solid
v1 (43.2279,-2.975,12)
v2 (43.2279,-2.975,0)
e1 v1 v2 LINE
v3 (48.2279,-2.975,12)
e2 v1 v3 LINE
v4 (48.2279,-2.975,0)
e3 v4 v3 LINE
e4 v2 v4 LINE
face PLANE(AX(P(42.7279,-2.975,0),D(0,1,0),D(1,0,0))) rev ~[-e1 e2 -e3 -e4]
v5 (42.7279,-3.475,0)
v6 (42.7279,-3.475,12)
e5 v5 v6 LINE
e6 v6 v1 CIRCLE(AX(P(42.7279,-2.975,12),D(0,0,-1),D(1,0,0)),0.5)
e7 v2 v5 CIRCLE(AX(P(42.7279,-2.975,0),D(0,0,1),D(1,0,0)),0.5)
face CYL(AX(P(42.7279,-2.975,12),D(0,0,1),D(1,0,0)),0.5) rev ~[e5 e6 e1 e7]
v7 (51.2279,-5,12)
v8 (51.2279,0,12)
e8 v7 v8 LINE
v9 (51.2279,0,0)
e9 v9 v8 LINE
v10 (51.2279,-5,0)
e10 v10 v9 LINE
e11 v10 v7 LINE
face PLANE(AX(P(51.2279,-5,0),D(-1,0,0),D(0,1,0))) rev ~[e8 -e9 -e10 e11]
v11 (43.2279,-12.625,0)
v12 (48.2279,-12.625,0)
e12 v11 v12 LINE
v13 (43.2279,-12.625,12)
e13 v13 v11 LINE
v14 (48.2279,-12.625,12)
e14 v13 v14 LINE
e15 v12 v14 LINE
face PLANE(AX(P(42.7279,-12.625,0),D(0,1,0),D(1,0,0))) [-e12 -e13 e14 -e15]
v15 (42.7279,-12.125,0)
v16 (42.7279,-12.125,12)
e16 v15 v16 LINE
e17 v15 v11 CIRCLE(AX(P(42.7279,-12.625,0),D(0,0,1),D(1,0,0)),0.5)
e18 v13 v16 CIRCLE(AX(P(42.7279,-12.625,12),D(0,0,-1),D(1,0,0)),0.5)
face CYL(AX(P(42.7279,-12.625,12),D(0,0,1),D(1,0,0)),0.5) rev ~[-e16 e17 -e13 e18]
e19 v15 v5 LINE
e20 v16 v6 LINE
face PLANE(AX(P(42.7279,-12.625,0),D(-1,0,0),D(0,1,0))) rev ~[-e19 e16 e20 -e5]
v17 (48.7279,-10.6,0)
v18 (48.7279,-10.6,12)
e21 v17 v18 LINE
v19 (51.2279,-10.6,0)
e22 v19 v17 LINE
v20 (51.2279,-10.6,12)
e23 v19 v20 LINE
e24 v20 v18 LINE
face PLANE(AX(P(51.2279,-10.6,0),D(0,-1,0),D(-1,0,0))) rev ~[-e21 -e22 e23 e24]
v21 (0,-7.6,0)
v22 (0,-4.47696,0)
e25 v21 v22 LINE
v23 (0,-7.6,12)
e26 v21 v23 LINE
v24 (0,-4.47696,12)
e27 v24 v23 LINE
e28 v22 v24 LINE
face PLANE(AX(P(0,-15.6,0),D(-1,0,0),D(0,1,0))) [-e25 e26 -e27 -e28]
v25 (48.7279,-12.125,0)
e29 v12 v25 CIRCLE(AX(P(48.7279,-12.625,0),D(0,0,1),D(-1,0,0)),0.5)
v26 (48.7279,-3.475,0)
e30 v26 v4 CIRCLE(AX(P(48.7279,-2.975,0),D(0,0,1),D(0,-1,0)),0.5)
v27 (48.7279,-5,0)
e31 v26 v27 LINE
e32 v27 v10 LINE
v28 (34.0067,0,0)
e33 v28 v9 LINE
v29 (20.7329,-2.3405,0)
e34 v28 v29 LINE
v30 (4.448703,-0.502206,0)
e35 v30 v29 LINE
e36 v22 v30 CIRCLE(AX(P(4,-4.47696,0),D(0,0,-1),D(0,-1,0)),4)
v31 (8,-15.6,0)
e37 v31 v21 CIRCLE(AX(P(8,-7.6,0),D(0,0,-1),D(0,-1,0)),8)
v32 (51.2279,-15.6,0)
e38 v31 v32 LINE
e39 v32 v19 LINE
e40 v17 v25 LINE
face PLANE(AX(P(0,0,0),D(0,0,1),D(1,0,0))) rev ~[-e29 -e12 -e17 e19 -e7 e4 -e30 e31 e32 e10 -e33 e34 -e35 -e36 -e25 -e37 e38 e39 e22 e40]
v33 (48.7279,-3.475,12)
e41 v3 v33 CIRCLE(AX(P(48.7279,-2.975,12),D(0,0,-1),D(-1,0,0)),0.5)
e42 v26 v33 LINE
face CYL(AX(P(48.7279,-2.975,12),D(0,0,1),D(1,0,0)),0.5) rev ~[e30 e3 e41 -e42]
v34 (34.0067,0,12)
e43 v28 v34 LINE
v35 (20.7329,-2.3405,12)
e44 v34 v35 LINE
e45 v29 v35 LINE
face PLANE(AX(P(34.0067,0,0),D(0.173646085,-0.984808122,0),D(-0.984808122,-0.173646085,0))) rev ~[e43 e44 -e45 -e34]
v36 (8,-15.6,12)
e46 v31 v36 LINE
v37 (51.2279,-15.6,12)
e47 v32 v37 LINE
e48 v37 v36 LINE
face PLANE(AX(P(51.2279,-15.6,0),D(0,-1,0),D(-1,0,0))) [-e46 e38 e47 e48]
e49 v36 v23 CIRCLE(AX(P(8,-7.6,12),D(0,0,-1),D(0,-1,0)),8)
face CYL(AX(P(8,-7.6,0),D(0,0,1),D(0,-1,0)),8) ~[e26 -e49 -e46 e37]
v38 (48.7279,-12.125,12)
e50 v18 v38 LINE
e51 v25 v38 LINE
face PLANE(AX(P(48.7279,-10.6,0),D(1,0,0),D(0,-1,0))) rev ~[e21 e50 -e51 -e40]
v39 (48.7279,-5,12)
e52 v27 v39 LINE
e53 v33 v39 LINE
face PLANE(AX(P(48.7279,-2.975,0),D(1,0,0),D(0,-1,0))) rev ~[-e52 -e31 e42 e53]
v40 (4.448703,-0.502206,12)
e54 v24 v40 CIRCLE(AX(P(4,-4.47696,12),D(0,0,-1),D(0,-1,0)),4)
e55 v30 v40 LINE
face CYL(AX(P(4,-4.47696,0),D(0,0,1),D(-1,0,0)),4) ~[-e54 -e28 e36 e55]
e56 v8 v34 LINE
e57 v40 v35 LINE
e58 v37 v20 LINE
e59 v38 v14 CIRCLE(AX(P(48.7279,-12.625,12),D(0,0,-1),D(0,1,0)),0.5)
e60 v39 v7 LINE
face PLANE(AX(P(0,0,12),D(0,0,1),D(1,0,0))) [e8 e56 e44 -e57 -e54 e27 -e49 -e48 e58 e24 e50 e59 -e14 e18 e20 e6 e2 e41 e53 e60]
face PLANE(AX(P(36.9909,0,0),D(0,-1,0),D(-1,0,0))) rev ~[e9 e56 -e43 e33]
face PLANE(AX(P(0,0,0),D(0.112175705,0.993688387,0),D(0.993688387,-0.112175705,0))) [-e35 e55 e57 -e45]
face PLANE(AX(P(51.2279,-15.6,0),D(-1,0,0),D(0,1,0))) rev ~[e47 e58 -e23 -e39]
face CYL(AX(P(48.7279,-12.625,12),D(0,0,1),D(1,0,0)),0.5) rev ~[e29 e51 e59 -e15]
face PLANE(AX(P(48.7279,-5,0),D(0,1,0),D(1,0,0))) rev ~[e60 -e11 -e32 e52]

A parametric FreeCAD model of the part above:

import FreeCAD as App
import Part
import Sketcher
from FreeCAD import Vector
Q = App.Units.Quantity


def edges_at(feature, points):
    """Names of the edges that pass closest to the given points."""
    edges = feature.Shape.Edges
    near = lambda p: min(range(len(edges)), key=lambda i: edges[i].distToShape(Part.Vertex(*p))[0])
    return sorted({f"Edge{near(p) + 1}" for p in points})


def add_polygon(sketch, points):
    """Adds a closed chain of lines whose ends are joined by coincident constraints."""
    first, n = sketch.GeometryCount, len(points)
    for a, b in zip(points, points[1:] + points[:1]):
        sketch.addGeometry(Part.LineSegment(App.Vector(*a, 0), App.Vector(*b, 0)), False)
    for i in range(n):
        sketch.addConstraint(Sketcher.Constraint("Coincident", first + i, 2, first + (i + 1) % n, 1))

doc = App.newDocument("Part")
body = doc.addObject("PartDesign::Body", "Body")

# Sketch on XY plane
sketch1 = doc.addObject("Sketcher::SketchObject", "Sketch")
body.addObject(sketch1)
sketch1.AttachmentSupport = (doc.XY_Plane, [""])
sketch1.MapMode = "FlatFace"
add_polygon(sketch1, [(0, -15.6), (51.2, -15.6), (51.2, -10.6), (48.7, -10.6), (48.7, -12.6), (42.7, -12.6), (42.7, -3), (48.7, -3), (48.7, -5), (51.2, -5), (51.2, 0), (34, 0), (20.7, -2.3), (0, 0)])  # lines 0-13
sketch1.addConstraint(Sketcher.Constraint("Horizontal", 0))
sketch1.addConstraint(Sketcher.Constraint("Vertical", 1))
sketch1.addConstraint(Sketcher.Constraint("Horizontal", 2))
sketch1.addConstraint(Sketcher.Constraint("Vertical", 3))
sketch1.addConstraint(Sketcher.Constraint("Horizontal", 4))
sketch1.addConstraint(Sketcher.Constraint("Vertical", 5))
sketch1.addConstraint(Sketcher.Constraint("Horizontal", 6))
sketch1.addConstraint(Sketcher.Constraint("Vertical", 7))
sketch1.addConstraint(Sketcher.Constraint("Horizontal", 8))
sketch1.addConstraint(Sketcher.Constraint("Vertical", 9))
sketch1.addConstraint(Sketcher.Constraint("Horizontal", 10))
sketch1.addConstraint(Sketcher.Constraint("Vertical", 13))
sketch1.addConstraint(Sketcher.Constraint("Coincident", 12, 2, -1, 1))
sketch1.addConstraint(Sketcher.Constraint("PointOnObject", 9, 2, -1))
sketch1.addConstraint(Sketcher.Constraint("Vertical", 3, 2, 6, 2))
sketch1.addConstraint(Sketcher.Constraint("Vertical", 1, 2, 8, 2))
sketch1.addConstraint(Sketcher.Constraint("Equal", 3, 7))
sketch1.addConstraint(Sketcher.Constraint("Equal", 1, 9))
sketch1.addConstraint(Sketcher.Constraint("DistanceX", 4, 2, 4, 1, 6.0))
sketch1.addConstraint(Sketcher.Constraint("DistanceX", 2, 2, 2, 1, 2.5))
sketch1.addConstraint(Sketcher.Constraint("DistanceY", 5, 1, 5, 2, 9.65))
sketch1.addConstraint(Sketcher.Constraint("DistanceY", 2, 2, 7, 2, 5.6))
sketch1.addConstraint(Sketcher.Constraint("DistanceY", 1, 1, 1, 2, 5.0))
sketch1.addConstraint(Sketcher.Constraint("Angle", 11, Q("-170.0001 deg")))
sketch1.addConstraint(Sketcher.Constraint("Angle", 12, Q("173.5592 deg")))
sketch1.addConstraint(Sketcher.Constraint("DistanceX", 0, 1, 0, 2, 51.228))
sketch1.addConstraint(Sketcher.Constraint("DistanceX", 10, 2, 10, 1, 17.2212))
pad1 = doc.addObject("PartDesign::Pad", "Pad")
body.addObject(pad1)
pad1.Profile = sketch1
pad1.Length = 12

# Sketch on XY plane
sketch2 = doc.addObject("Sketcher::SketchObject", "Sketch001")
body.addObject(sketch2)
sketch2.AttachmentSupport = (doc.XY_Plane, [""])
sketch2.MapMode = "FlatFace"
sketch2.AttachmentOffset = App.Placement(Vector(0, 0, 12), App.Rotation())
sketch2.addGeometry(Part.Circle(Vector(42.7, -3, 0), Vector(0, 0, 1), 0.5), False)
sketch2.addGeometry(Part.Circle(Vector(48.7, -3, 0), Vector(0, 0, 1), 0.5), False)
sketch2.addGeometry(Part.Circle(Vector(48.7, -12.6, 0), Vector(0, 0, 1), 0.5), False)
sketch2.addGeometry(Part.Circle(Vector(42.7, -12.6, 0), Vector(0, 0, 1), 0.5), False)
sketch2.addConstraint(Sketcher.Constraint("Equal", 0, 1))
sketch2.addConstraint(Sketcher.Constraint("Equal", 1, 2))
sketch2.addConstraint(Sketcher.Constraint("Equal", 2, 3))
sketch2.addConstraint(Sketcher.Constraint("Horizontal", 0, 3, 1, 3))
sketch2.addConstraint(Sketcher.Constraint("Horizontal", 2, 3, 3, 3))
sketch2.addConstraint(Sketcher.Constraint("Vertical", 1, 3, 2, 3))
sketch2.addConstraint(Sketcher.Constraint("Vertical", 0, 3, 3, 3))
sketch2.addConstraint(Sketcher.Constraint("Diameter", 0, 1.0))
sketch2.addConstraint(Sketcher.Constraint("DistanceX", 0, 3, 1, 3, 6.0))
sketch2.addConstraint(Sketcher.Constraint("DistanceY", 2, 3, 1, 3, 9.65))
sketch2.addConstraint(Sketcher.Constraint("DistanceX", -1, 1, 0, 3, 42.728))
sketch2.addConstraint(Sketcher.Constraint("DistanceY", 0, 3, -1, 1, 2.975))
pocket1 = doc.addObject("PartDesign::Pocket", "Pocket")
body.addObject(pocket1)
pocket1.Profile = sketch2
pocket1.Type = "ThroughAll"
doc.recompute()

fillet = doc.addObject("PartDesign::Fillet", "Fillet")
body.addObject(fillet)
fillet.Base = (pocket1, edges_at(pocket1, [(0, -15.6, 6)]))
fillet.Radius = 8
doc.recompute()

fillet2 = doc.addObject("PartDesign::Fillet", "Fillet001")
body.addObject(fillet2)
fillet2.Base = (fillet, edges_at(fillet, [(0, 0, 6)]))
fillet2.Radius = 4

doc.recompute()
